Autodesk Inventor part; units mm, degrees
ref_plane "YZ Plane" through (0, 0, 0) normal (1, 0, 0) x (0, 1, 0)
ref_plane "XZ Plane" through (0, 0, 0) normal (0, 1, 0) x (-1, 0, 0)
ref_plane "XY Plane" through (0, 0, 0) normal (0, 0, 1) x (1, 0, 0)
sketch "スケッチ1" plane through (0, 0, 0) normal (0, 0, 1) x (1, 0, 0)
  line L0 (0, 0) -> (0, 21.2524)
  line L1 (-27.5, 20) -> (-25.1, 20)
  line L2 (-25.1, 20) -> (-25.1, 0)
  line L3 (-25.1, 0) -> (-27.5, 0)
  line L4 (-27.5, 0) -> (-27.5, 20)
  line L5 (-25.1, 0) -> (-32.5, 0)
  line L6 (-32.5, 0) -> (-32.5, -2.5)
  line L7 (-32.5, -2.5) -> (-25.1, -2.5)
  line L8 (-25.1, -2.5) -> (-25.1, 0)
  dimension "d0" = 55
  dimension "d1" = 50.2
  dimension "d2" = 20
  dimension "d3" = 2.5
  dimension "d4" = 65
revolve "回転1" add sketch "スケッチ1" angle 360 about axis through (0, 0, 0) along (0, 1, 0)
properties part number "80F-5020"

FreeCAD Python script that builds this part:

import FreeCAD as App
import Part
import Sketcher
from FreeCAD import Vector
Q = App.Units.Quantity

doc = App.newDocument("Part")
params = doc.addObject("Spreadsheet::Sheet", "Params")
for row, (alias, value) in enumerate([
    ("sketch1_height", "20 mm"),
    ("sketch1_height2", "2.5 mm"),
    ("sketch1_width", "5 mm"),
    ("sketch1_width2", "2.4 mm"),
    ("revolution_angle", "360 deg"),
], start=1):
    params.set(f"A{row}", alias)
    params.set(f"B{row}", "=" + value)
    params.setAlias(f"B{row}", alias)

body = doc.addObject("PartDesign::Body", "Body")

sketch1 = body.newObject("Sketcher::SketchObject", "Sketch")
sketch1.AttachmentSupport = (doc.getObject("XY_Plane"), [""])
sketch1.MapMode = "FlatFace"
sketch1.addGeometry(Part.LineSegment(Vector(-25.1, 20, 0), Vector(-27.5, 20, 0)), False)
sketch1.addGeometry(Part.LineSegment(Vector(-27.5, 20, 0), Vector(-27.5, 0, 0)), False)
sketch1.addGeometry(Part.LineSegment(Vector(-27.5, 0, 0), Vector(-32.5, 0, 0)), False)
sketch1.addGeometry(Part.LineSegment(Vector(-32.5, 0, 0), Vector(-32.5, -2.5, 0)), False)
sketch1.addGeometry(Part.LineSegment(Vector(-32.5, -2.5, 0), Vector(-25.1, -2.5, 0)), False)
sketch1.addGeometry(Part.LineSegment(Vector(-25.1, -2.5, 0), Vector(-25.1, 20, 0)), False)
sketch1.addConstraint(Sketcher.Constraint("Coincident", 0, 2, 1, 1))
sketch1.addConstraint(Sketcher.Constraint("Coincident", 1, 2, 2, 1))
sketch1.addConstraint(Sketcher.Constraint("Coincident", 2, 2, 3, 1))
sketch1.addConstraint(Sketcher.Constraint("Coincident", 3, 2, 4, 1))
sketch1.addConstraint(Sketcher.Constraint("Coincident", 4, 2, 5, 1))
sketch1.addConstraint(Sketcher.Constraint("Coincident", 5, 2, 0, 1))
sketch1.addConstraint(Sketcher.Constraint("Horizontal", 0))
sketch1.addConstraint(Sketcher.Constraint("Vertical", 1))
sketch1.addConstraint(Sketcher.Constraint("Horizontal", 2))
sketch1.addConstraint(Sketcher.Constraint("Vertical", 3))
sketch1.addConstraint(Sketcher.Constraint("Horizontal", 4))
sketch1.addConstraint(Sketcher.Constraint("Vertical", 5))
sketch1.addConstraint(Sketcher.Constraint("PointOnObject", 1, 2, -1))
sketch1.addConstraint(Sketcher.Constraint("DistanceY", 1, 2, 1, 1, Q("20 mm")))
sketch1.addConstraint(Sketcher.Constraint("DistanceY", 3, 2, 3, 1, Q("2.5 mm")))
sketch1.addConstraint(Sketcher.Constraint("DistanceX", 2, 2, 2, 1, Q("5 mm")))
sketch1.addConstraint(Sketcher.Constraint("DistanceX", 0, 2, 0, 1, Q("2.4 mm")))
sketch1.addConstraint(Sketcher.Constraint("DistanceX", 0, 2, -1, 1, Q("27.5 mm")))
sketch1.setExpression("Constraints[13]", "Params.sketch1_height")
sketch1.setExpression("Constraints[14]", "Params.sketch1_height2")
sketch1.setExpression("Constraints[15]", "Params.sketch1_width")
sketch1.setExpression("Constraints[16]", "Params.sketch1_width2")
revolution = body.newObject("PartDesign::Revolution", "Revolution")
revolution.Profile = sketch1
revolution.ReferenceAxis = (sketch1, ["V_Axis"])
revolution.setExpression("Angle", "Params.revolution_angle")

doc.recompute()
